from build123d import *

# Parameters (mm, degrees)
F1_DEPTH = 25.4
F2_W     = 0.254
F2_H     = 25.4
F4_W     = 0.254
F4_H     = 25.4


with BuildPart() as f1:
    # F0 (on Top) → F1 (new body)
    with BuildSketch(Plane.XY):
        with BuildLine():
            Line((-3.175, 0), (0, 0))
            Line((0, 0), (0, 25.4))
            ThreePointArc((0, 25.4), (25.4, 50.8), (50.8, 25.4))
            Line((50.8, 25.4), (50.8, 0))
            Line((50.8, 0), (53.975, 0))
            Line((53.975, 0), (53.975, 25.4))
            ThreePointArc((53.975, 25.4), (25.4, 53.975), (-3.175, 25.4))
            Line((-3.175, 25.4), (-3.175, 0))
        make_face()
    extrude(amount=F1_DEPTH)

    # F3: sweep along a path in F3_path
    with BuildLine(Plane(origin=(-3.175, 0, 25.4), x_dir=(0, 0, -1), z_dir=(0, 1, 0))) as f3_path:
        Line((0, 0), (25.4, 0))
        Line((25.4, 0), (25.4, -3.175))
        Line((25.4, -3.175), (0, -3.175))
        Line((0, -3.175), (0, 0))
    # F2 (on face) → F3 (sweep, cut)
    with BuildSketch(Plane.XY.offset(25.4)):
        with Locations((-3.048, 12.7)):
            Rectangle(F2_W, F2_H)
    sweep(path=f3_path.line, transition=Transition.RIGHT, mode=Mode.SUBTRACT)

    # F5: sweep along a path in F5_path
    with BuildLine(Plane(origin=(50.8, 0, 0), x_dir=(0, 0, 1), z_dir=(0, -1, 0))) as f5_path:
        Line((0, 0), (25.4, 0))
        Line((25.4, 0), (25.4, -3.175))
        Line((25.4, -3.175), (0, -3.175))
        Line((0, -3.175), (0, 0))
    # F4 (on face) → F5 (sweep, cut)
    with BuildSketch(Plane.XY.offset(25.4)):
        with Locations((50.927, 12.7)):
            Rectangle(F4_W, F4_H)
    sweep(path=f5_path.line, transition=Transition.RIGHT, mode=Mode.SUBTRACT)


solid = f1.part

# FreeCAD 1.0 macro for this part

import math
import FreeCAD as App
import Part
import Sketcher
Q = App.Units.Quantity


def add_polygon(sketch, points):
    """Adds a closed chain of lines whose ends are joined by coincident constraints."""
    first, n = sketch.GeometryCount, len(points)
    for a, b in zip(points, points[1:] + points[:1]):
        sketch.addGeometry(Part.LineSegment(App.Vector(*a, 0), App.Vector(*b, 0)), False)
    for i in range(n):
        sketch.addConstraint(Sketcher.Constraint("Coincident", first + i, 2, first + (i + 1) % n, 1))

doc = App.newDocument("Part")
body = doc.addObject("PartDesign::Body", "Body")

# Sketch on XY plane
sketch1 = body.newObject("Sketcher::SketchObject", "Sketch")
sketch1.AttachmentSupport = (doc.getObject("XY_Plane"), [""])
sketch1.MapMode = "FlatFace"
sketch1.addGeometry([
    Part.LineSegment(App.Vector(-3.2, 0, 0), App.Vector(0, 0, 0)),  # 0
    Part.LineSegment(App.Vector(0, 0, 0), App.Vector(0, 25.4, 0)),  # 1
    Part.ArcOfCircle(Part.Circle(App.Vector(25.4, 25.4, 0), App.Vector(0, 0, 1), 25.4), math.radians(0), math.radians(180)),  # 2
    Part.LineSegment(App.Vector(50.8, 25.4, 0), App.Vector(50.8, 0, 0)),  # 3
    Part.LineSegment(App.Vector(50.8, 0, 0), App.Vector(54, 0, 0)),  # 4
    Part.LineSegment(App.Vector(54, 0, 0), App.Vector(54, 25.4, 0)),  # 5
    Part.ArcOfCircle(Part.Circle(App.Vector(25.4, 25.4, 0), App.Vector(0, 0, 1), 28.6), math.radians(0), math.radians(180)),  # 6
    Part.LineSegment(App.Vector(-3.2, 25.4, 0), App.Vector(-3.2, 0, 0)),  # 7
], False)
sketch1.addConstraint([
    Sketcher.Constraint("Coincident", 0, 2, 1, 1),
    Sketcher.Constraint("Tangent", 1, 2, 2, 2),
    Sketcher.Constraint("Tangent", 2, 1, 3, 1),
    Sketcher.Constraint("Coincident", 3, 2, 4, 1),
    Sketcher.Constraint("Coincident", 4, 2, 5, 1),
    Sketcher.Constraint("Tangent", 5, 2, 6, 1),
    Sketcher.Constraint("Tangent", 6, 2, 7, 1),
    Sketcher.Constraint("Coincident", 7, 2, 0, 1),
    Sketcher.Constraint("Horizontal", 0),
    Sketcher.Constraint("Vertical", 1),
    Sketcher.Constraint("Vertical", 3),
    Sketcher.Constraint("Horizontal", 4),
    Sketcher.Constraint("Vertical", 5),
    Sketcher.Constraint("Vertical", 7),
    Sketcher.Constraint("Coincident", 0, 2, -1, 1),
    Sketcher.Constraint("Coincident", 6, 3, 2, 3),
    Sketcher.Constraint("PointOnObject", 3, 2, -1),
    Sketcher.Constraint("Radius", 2, Q("1 in")),
    Sketcher.Constraint("DistanceY", 1, 1, 1, 2, Q("1 in")),
    Sketcher.Constraint("Radius", 6, Q("1.125 in")),
])
pad1 = body.newObject("PartDesign::Pad", "Pad")
pad1.Profile = sketch1
pad1.Length = Q("1 in")

# Sketch on XY plane
sketch2 = body.newObject("Sketcher::SketchObject", "Sketch001")
sketch2.AttachmentSupport = (doc.getObject("XY_Plane"), [""])
sketch2.MapMode = "FlatFace"
sketch2.AttachmentOffset = App.Placement(App.Vector(0, 0, 1 * 25.4), App.Rotation())
add_polygon(sketch2, [(-3.17, 25.4), (-3.17, 0), (-2.92, 0), (-2.92, 25.4)])  # lines 0-3
sketch2.addConstraint([
    Sketcher.Constraint("Vertical", 0),
    Sketcher.Constraint("Horizontal", 1),
    Sketcher.Constraint("Vertical", 2),
    Sketcher.Constraint("Horizontal", 3),
    Sketcher.Constraint("PointOnObject", 0, 2, -1),
    Sketcher.Constraint("DistanceY", 0, 2, 0, 1, Q("1 in")),
    Sketcher.Constraint("DistanceX", 1, 1, 1, 2, Q("0.01 in")),
    Sketcher.Constraint("DistanceX", 0, 2, -1, 1, Q("0.125 in")),
])

# Sketch on XZ plane
sketch3 = body.newObject("Sketcher::SketchObject", "Sketch002")
sketch3.AttachmentSupport = (doc.getObject("XZ_Plane"), [""])
sketch3.MapMode = "FlatFace"
add_polygon(sketch3, [(-3.2, 25.4), (-3.2, 0), (0, 0), (0, 25.4)])  # lines 0-3
sketch3.addConstraint([
    Sketcher.Constraint("Vertical", 0),
    Sketcher.Constraint("Horizontal", 1),
    Sketcher.Constraint("Vertical", 2),
    Sketcher.Constraint("Horizontal", 3),
    Sketcher.Constraint("Coincident", 1, 2, -1, 1),
    Sketcher.Constraint("DistanceY", 0, 2, 0, 1, Q("1 in")),
    Sketcher.Constraint("DistanceX", 1, 1, 1, 2, Q("0.125 in")),
])
doc.recompute()

subtractivepipe = body.newObject("PartDesign::SubtractivePipe", "SubtractivePipe")
subtractivepipe.Profile = sketch2
subtractivepipe.Spine = (sketch3, ["Edge1", "Edge2", "Edge3", "Edge4"])
subtractivepipe.Transition = "Right corner"

# Sketch on XY plane
sketch4 = body.newObject("Sketcher::SketchObject", "Sketch003")
sketch4.AttachmentSupport = (doc.getObject("XY_Plane"), [""])
sketch4.MapMode = "FlatFace"
sketch4.AttachmentOffset = App.Placement(App.Vector(0, 0, 1 * 25.4), App.Rotation())
add_polygon(sketch4, [(50.8, 25.4), (50.8, 0), (51.05, 0), (51.05, 25.4)])  # lines 0-3
sketch4.addConstraint([
    Sketcher.Constraint("Vertical", 0),
    Sketcher.Constraint("Horizontal", 1),
    Sketcher.Constraint("Vertical", 2),
    Sketcher.Constraint("Horizontal", 3),
    Sketcher.Constraint("PointOnObject", 0, 2, -1),
    Sketcher.Constraint("DistanceY", 0, 2, 0, 1, Q("1 in")),
    Sketcher.Constraint("DistanceX", -1, 1, 0, 2, Q("2 in")),
    Sketcher.Constraint("DistanceX", 1, 1, 1, 2, Q("0.01 in")),
])

# Sketch on XZ plane
sketch5 = body.newObject("Sketcher::SketchObject", "Sketch004")
sketch5.AttachmentSupport = (doc.getObject("XZ_Plane"), [""])
sketch5.MapMode = "FlatFace"
add_polygon(sketch5, [(50.8, 0), (50.8, 25.4), (54, 25.4), (54, 0)])  # lines 0-3
sketch5.addConstraint([
    Sketcher.Constraint("Vertical", 0),
    Sketcher.Constraint("Horizontal", 1),
    Sketcher.Constraint("Vertical", 2),
    Sketcher.Constraint("Horizontal", 3),
    Sketcher.Constraint("PointOnObject", 2, 2, -1),
    Sketcher.Constraint("DistanceY", 0, 1, 0, 2, Q("1 in")),
    Sketcher.Constraint("DistanceX", -1, 1, 0, 2, Q("2 in")),
    Sketcher.Constraint("DistanceX", 1, 1, 1, 2, Q("0.125 in")),
])
doc.recompute()

subtractivepipe2 = body.newObject("PartDesign::SubtractivePipe", "SubtractivePipe001")
subtractivepipe2.Profile = sketch4
subtractivepipe2.Spine = (sketch5, ["Edge1", "Edge2", "Edge3", "Edge4"])
subtractivepipe2.Transition = "Right corner"

doc.recompute()
